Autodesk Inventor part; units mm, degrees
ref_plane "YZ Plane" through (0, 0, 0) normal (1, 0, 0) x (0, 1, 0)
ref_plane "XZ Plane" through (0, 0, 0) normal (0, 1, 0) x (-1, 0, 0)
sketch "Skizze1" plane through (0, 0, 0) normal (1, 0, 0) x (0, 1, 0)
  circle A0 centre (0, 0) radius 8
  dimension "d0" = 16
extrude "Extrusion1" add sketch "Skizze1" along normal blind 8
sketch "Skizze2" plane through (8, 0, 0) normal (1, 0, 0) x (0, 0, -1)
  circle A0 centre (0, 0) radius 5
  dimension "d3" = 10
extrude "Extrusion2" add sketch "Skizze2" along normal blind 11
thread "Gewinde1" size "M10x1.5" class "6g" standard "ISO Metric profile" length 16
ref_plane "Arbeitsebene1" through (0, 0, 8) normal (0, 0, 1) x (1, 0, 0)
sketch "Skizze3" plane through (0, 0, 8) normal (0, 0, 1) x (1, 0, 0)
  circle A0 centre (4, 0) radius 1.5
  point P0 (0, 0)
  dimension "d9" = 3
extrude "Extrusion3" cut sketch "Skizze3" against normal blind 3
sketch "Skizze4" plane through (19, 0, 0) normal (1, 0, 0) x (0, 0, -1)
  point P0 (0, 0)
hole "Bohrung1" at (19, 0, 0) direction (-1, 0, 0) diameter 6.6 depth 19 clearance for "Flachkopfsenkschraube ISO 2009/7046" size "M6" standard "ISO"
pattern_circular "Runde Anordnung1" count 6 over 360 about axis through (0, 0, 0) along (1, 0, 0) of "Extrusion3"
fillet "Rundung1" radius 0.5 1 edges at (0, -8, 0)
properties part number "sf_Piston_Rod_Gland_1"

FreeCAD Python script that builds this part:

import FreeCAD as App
import Part
import Sketcher
from FreeCAD import Vector
Q = App.Units.Quantity


def edges_at(feature, points):
    """Names of the edges that pass closest to the given points."""
    edges = feature.Shape.Edges
    near = lambda p: min(range(len(edges)), key=lambda i: edges[i].distToShape(Part.Vertex(*p))[0])
    return sorted({f"Edge{near(p) + 1}" for p in points})

doc = App.newDocument("Part")
body = doc.addObject("PartDesign::Body", "Body")

# Sketch on YZ plane
sketch1 = doc.addObject("Sketcher::SketchObject", "Sketch")
body.addObject(sketch1)
sketch1.AttachmentSupport = (doc.YZ_Plane, [""])
sketch1.MapMode = "FlatFace"
sketch1.addGeometry(Part.Circle(Vector(0, 0, 0), Vector(0, 0, 1), 8), False)
sketch1.addConstraint([
    Sketcher.Constraint("Coincident", 0, 3, -1, 1),
    Sketcher.Constraint("Diameter", 0, Q("16 mm")),
])
pad1 = doc.addObject("PartDesign::Pad", "Pad")
body.addObject(pad1)
pad1.Profile = sketch1
pad1.Length = 8

# Sketch on YZ plane
sketch2 = doc.addObject("Sketcher::SketchObject", "Sketch001")
body.addObject(sketch2)
sketch2.AttachmentSupport = (doc.YZ_Plane, [""])
sketch2.MapMode = "FlatFace"
sketch2.AttachmentOffset = App.Placement(Vector(0, 0, 8), App.Rotation())
sketch2.addGeometry(Part.Circle(Vector(0, 0, 0), Vector(0, 0, 1), 5), False)
sketch2.addConstraint([
    Sketcher.Constraint("Coincident", 0, 3, -1, 1),
    Sketcher.Constraint("Diameter", 0, Q("10 mm")),
])
pad2 = doc.addObject("PartDesign::Pad", "Pad001")
body.addObject(pad2)
pad2.Profile = sketch2
pad2.Length = 11

# Sketch on XY plane
sketch3 = doc.addObject("Sketcher::SketchObject", "Sketch002")
body.addObject(sketch3)
sketch3.AttachmentSupport = (doc.XY_Plane, [""])
sketch3.MapMode = "FlatFace"
sketch3.AttachmentOffset = App.Placement(Vector(0, 0, 8), App.Rotation())
sketch3.addGeometry(Part.Circle(Vector(4, 0, 0), Vector(0, 0, 1), 1.5), False)
sketch3.addConstraint([
    Sketcher.Constraint("PointOnObject", 0, 3, -1),
    Sketcher.Constraint("Diameter", 0, Q("3 mm")),
    Sketcher.Constraint("DistanceX", -1, 1, 0, 3, Q("4 mm")),
])
pocket1 = doc.addObject("PartDesign::Pocket", "Pocket")
body.addObject(pocket1)
pocket1.Profile = sketch3
pocket1.Length = 3

# Sketch on YZ plane
sketch4 = doc.addObject("Sketcher::SketchObject", "Sketch003")
body.addObject(sketch4)
sketch4.AttachmentSupport = (doc.YZ_Plane, [""])
sketch4.MapMode = "FlatFace"
sketch4.AttachmentOffset = App.Placement(Vector(0, 0, 19), App.Rotation())
sketch4.addGeometry(Part.Circle(Vector(0, 0, 0), Vector(0, 0, 1), 3.3), False)
sketch4.addConstraint([
    Sketcher.Constraint("Coincident", 0, 3, -1, 1),
    Sketcher.Constraint("Diameter", 0, Q("6.6 mm")),
])
doc.recompute()
hole = doc.addObject("PartDesign::Hole", "Hole")
body.addObject(hole)
hole.Profile = sketch4
hole.ThreadType = "None"
hole.Diameter = 6.6
hole.DepthType = "Dimension"
hole.Depth = 19
hole.DrillPoint = "Flat"
doc.recompute()

polarpattern = doc.addObject("PartDesign::PolarPattern", "PolarPattern")
body.addObject(polarpattern)
polarpattern.Originals = [pocket1]
polarpattern.Axis = (doc.X_Axis, [""])
polarpattern.Angle = 360
polarpattern.Occurrences = 6
body.Tip = polarpattern
doc.recompute()

fillet = doc.addObject("PartDesign::Fillet", "Fillet")
body.addObject(fillet)
fillet.Base = (polarpattern, edges_at(polarpattern, [(0, -8, 0)]))
fillet.Radius = 0.5

doc.recompute()
